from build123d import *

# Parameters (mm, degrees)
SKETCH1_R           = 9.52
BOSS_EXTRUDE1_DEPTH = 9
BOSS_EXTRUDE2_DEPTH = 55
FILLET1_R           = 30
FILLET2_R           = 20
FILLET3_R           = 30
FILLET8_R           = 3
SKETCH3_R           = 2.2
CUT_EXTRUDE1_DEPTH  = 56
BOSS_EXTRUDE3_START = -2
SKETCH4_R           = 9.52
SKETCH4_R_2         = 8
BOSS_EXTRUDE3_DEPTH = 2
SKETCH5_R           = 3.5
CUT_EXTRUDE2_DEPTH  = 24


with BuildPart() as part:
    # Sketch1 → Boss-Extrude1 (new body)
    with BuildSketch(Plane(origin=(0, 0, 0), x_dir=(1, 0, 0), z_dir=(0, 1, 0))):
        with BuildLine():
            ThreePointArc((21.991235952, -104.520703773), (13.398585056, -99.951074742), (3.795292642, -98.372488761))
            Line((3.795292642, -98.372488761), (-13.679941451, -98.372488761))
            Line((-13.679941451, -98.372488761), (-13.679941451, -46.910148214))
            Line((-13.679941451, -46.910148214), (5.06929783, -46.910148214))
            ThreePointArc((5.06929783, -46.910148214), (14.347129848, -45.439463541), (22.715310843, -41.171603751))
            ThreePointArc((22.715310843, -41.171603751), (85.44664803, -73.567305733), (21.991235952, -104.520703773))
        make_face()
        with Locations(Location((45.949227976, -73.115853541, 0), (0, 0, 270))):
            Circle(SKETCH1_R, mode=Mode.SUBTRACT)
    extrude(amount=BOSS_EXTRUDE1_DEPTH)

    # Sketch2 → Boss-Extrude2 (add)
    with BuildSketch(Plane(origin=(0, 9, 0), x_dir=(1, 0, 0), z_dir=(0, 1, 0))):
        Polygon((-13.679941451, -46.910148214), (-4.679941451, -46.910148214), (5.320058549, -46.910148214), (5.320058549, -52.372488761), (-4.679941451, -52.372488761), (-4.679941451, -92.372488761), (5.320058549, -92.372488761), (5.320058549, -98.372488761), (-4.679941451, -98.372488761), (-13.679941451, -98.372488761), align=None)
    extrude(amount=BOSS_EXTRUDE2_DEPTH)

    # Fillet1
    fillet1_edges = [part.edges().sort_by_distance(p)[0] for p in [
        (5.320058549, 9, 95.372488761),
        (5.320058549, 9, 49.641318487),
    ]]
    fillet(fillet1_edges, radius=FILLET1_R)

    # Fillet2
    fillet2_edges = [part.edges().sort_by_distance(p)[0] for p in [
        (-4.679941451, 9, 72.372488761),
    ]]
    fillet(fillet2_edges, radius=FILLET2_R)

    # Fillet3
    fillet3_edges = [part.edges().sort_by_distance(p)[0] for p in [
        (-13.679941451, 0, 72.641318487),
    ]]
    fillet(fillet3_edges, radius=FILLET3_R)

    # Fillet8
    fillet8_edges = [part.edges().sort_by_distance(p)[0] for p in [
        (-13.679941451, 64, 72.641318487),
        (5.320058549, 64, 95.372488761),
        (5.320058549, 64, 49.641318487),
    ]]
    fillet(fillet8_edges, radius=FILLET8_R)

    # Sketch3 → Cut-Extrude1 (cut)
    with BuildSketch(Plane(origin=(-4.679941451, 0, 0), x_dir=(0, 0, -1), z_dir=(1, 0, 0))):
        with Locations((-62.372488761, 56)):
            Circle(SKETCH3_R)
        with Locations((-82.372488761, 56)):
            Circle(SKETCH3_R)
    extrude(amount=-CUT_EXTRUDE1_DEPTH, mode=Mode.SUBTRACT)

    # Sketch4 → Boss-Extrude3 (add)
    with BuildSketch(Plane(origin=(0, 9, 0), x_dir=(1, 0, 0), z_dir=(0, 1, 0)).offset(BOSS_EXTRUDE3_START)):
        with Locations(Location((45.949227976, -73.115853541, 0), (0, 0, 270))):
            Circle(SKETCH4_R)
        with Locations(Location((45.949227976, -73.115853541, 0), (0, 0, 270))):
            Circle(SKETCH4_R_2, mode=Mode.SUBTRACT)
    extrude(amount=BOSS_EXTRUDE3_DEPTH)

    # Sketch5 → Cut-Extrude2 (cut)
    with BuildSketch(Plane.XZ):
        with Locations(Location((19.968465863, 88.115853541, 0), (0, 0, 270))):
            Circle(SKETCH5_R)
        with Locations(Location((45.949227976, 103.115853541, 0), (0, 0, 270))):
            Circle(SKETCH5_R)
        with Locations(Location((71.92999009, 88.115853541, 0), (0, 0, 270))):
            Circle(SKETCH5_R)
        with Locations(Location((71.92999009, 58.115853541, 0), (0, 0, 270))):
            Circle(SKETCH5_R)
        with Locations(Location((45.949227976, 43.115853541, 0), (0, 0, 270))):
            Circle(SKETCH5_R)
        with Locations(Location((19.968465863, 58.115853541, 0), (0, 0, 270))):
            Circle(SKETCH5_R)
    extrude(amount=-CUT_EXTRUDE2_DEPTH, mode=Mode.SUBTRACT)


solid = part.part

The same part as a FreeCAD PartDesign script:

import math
import FreeCAD as App
import Part
import Sketcher
from FreeCAD import Vector
Q = App.Units.Quantity


def edges_at(feature, points):
    """Names of the edges that pass closest to the given points."""
    edges = feature.Shape.Edges
    near = lambda p: min(range(len(edges)), key=lambda i: edges[i].distToShape(Part.Vertex(*p))[0])
    return sorted({f"Edge{near(p) + 1}" for p in points})

doc = App.newDocument("Part")
body = doc.addObject("PartDesign::Body", "Body")

# Sketch on XZ plane
sketch1 = body.newObject("Sketcher::SketchObject", "Sketch")
sketch1.AttachmentSupport = (doc.getObject("XZ_Plane"), [""])
sketch1.MapMode = "FlatFace"
sketch1.addGeometry(Part.ArcOfCircle(Part.Circle(Vector(3.795293, 128.372489, 0), Vector(0, 0, 1), 30), math.radians(-90), math.radians(-52.660876)), False)
sketch1.addGeometry(Part.ArcOfCircle(Part.Circle(Vector(45.949228, 73.115854, 0), Vector(0, 0, 1), 39.5), math.radians(-126.029409), math.radians(127.339124)), False)
sketch1.addGeometry(Part.ArcOfCircle(Part.Circle(Vector(5.069298, 16.910148, 0), Vector(0, 0, 1), 30), math.radians(53.970591), math.radians(90)), False)
sketch1.addGeometry(Part.LineSegment(Vector(5.069298, 46.910148, 0), Vector(-13.679941, 46.910148, 0)), False)
sketch1.addGeometry(Part.LineSegment(Vector(-13.679941, 46.910148, 0), Vector(-13.679941, 98.372489, 0)), False)
sketch1.addGeometry(Part.LineSegment(Vector(-13.679941, 98.372489, 0), Vector(3.795293, 98.372489, 0)), False)
sketch1.addGeometry(Part.Circle(Vector(45.949228, 73.115854, 0), Vector(0, 0, 1), 9.52), False)
sketch1.addConstraint(Sketcher.Constraint("Tangent", 0, 2, 1, 2))
sketch1.addConstraint(Sketcher.Constraint("Tangent", 1, 1, 2, 1))
sketch1.addConstraint(Sketcher.Constraint("Tangent", 2, 2, 3, 1))
sketch1.addConstraint(Sketcher.Constraint("Coincident", 3, 2, 4, 1))
sketch1.addConstraint(Sketcher.Constraint("Coincident", 4, 2, 5, 1))
sketch1.addConstraint(Sketcher.Constraint("Tangent", 5, 2, 0, 1))
sketch1.addConstraint(Sketcher.Constraint("Horizontal", 3))
sketch1.addConstraint(Sketcher.Constraint("Vertical", 4))
sketch1.addConstraint(Sketcher.Constraint("Horizontal", 5))
sketch1.addConstraint(Sketcher.Constraint("Coincident", 6, 3, 1, 3))
sketch1.addConstraint(Sketcher.Constraint("Equal", 0, 2))
sketch1.addConstraint(Sketcher.Constraint("Radius", 0, Q("30 mm")))
sketch1.addConstraint(Sketcher.Constraint("Radius", 1, Q("39.5 mm")))
sketch1.addConstraint(Sketcher.Constraint("Diameter", 6, Q("19.04 mm")))
sketch1.addConstraint(Sketcher.Constraint("DistanceX", 3, 2, 3, 1, Q("18.749239 mm")))
sketch1.addConstraint(Sketcher.Constraint("DistanceY", 4, 1, 4, 2, Q("51.462341 mm")))
sketch1.addConstraint(Sketcher.Constraint("DistanceX", 5, 1, 5, 2, Q("17.475234 mm")))
sketch1.addConstraint(Sketcher.Constraint("DistanceY", -1, 1, 0, 3, Q("128.372489 mm")))
sketch1.addConstraint(Sketcher.Constraint("DistanceX", -1, 1, 1, 1, Q("22.715311 mm")))
pad1 = body.newObject("PartDesign::Pad", "Pad")
pad1.Profile = sketch1
pad1.Length = 9
pad1.Reversed = True

# Sketch on XZ plane
sketch2 = body.newObject("Sketcher::SketchObject", "Sketch001")
sketch2.AttachmentSupport = (doc.getObject("XZ_Plane"), [""])
sketch2.MapMode = "FlatFace"
sketch2.AttachmentOffset = App.Placement(Vector(0, 0, -9), App.Rotation())
sketch2.addGeometry(Part.LineSegment(Vector(5.320059, 46.910148, 0), Vector(-13.679941, 46.910148, 0)), False)
sketch2.addGeometry(Part.LineSegment(Vector(-13.679941, 46.910148, 0), Vector(-13.679941, 98.372489, 0)), False)
sketch2.addGeometry(Part.LineSegment(Vector(-13.679941, 98.372489, 0), Vector(5.320059, 98.372489, 0)), False)
sketch2.addGeometry(Part.LineSegment(Vector(5.320059, 98.372489, 0), Vector(5.320059, 92.372489, 0)), False)
sketch2.addGeometry(Part.LineSegment(Vector(5.320059, 92.372489, 0), Vector(-4.679941, 92.372489, 0)), False)
sketch2.addGeometry(Part.LineSegment(Vector(-4.679941, 92.372489, 0), Vector(-4.679941, 52.372489, 0)), False)
sketch2.addGeometry(Part.LineSegment(Vector(-4.679941, 52.372489, 0), Vector(5.320059, 52.372489, 0)), False)
sketch2.addGeometry(Part.LineSegment(Vector(5.320059, 52.372489, 0), Vector(5.320059, 46.910148, 0)), False)
sketch2.addConstraint(Sketcher.Constraint("Coincident", 0, 2, 1, 1))
sketch2.addConstraint(Sketcher.Constraint("Coincident", 1, 2, 2, 1))
sketch2.addConstraint(Sketcher.Constraint("Coincident", 2, 2, 3, 1))
sketch2.addConstraint(Sketcher.Constraint("Coincident", 3, 2, 4, 1))
sketch2.addConstraint(Sketcher.Constraint("Coincident", 4, 2, 5, 1))
sketch2.addConstraint(Sketcher.Constraint("Coincident", 5, 2, 6, 1))
sketch2.addConstraint(Sketcher.Constraint("Coincident", 6, 2, 7, 1))
sketch2.addConstraint(Sketcher.Constraint("Coincident", 7, 2, 0, 1))
sketch2.addConstraint(Sketcher.Constraint("Horizontal", 0))
sketch2.addConstraint(Sketcher.Constraint("Vertical", 1))
sketch2.addConstraint(Sketcher.Constraint("Horizontal", 2))
sketch2.addConstraint(Sketcher.Constraint("Vertical", 3))
sketch2.addConstraint(Sketcher.Constraint("Horizontal", 4))
sketch2.addConstraint(Sketcher.Constraint("Vertical", 5))
sketch2.addConstraint(Sketcher.Constraint("Horizontal", 6))
sketch2.addConstraint(Sketcher.Constraint("Vertical", 7))
sketch2.addConstraint(Sketcher.Constraint("Vertical", 3, 2, 6, 2))
sketch2.addConstraint(Sketcher.Constraint("DistanceX", 0, 2, 0, 1, Q("19 mm")))
sketch2.addConstraint(Sketcher.Constraint("DistanceX", 4, 2, 4, 1, Q("10 mm")))
sketch2.addConstraint(Sketcher.Constraint("DistanceY", 3, 2, 3, 1, Q("6 mm")))
sketch2.addConstraint(Sketcher.Constraint("DistanceY", 5, 2, 5, 1, Q("40 mm")))
sketch2.addConstraint(Sketcher.Constraint("DistanceY", 1, 1, 1, 2, Q("51.462341 mm")))
sketch2.addConstraint(Sketcher.Constraint("DistanceX", 0, 2, -1, 1, Q("13.679941 mm")))
sketch2.addConstraint(Sketcher.Constraint("DistanceY", -1, 1, 0, 2, Q("46.910148 mm")))
pad2 = body.newObject("PartDesign::Pad", "Pad001")
pad2.Profile = sketch2
pad2.Length = 55
pad2.Reversed = True
doc.recompute()

fillet = body.newObject("PartDesign::Fillet", "Fillet")
fillet.Base = (pad2, edges_at(pad2, [(5.32, 9, 95.372), (5.32, 9, 49.641)]))
fillet.Radius = 30
doc.recompute()

fillet2 = body.newObject("PartDesign::Fillet", "Fillet001")
fillet2.Base = (fillet, edges_at(fillet, [(-4.68, 9, 72.372)]))
fillet2.Radius = 20
doc.recompute()

fillet3 = body.newObject("PartDesign::Fillet", "Fillet002")
fillet3.Base = (fillet2, edges_at(fillet2, [(-13.68, 0, 72.641)]))
fillet3.Radius = 30
doc.recompute()

fillet4 = body.newObject("PartDesign::Fillet", "Fillet003")
fillet4.Base = (fillet3, edges_at(fillet3, [(-13.68, 64, 72.641), (5.32, 64, 95.372), (5.32, 64, 49.641)]))
fillet4.Radius = 3

# Sketch on YZ plane
sketch3 = body.newObject("Sketcher::SketchObject", "Sketch002")
sketch3.AttachmentSupport = (doc.getObject("YZ_Plane"), [""])
sketch3.MapMode = "FlatFace"
sketch3.AttachmentOffset = App.Placement(Vector(0, 0, -4.679941), App.Rotation())
sketch3.addGeometry(Part.Circle(Vector(56, 62.372489, 0), Vector(0, 0, 1), 2.2), False)
sketch3.addGeometry(Part.Circle(Vector(56, 82.372489, 0), Vector(0, 0, 1), 2.2), False)
sketch3.addConstraint(Sketcher.Constraint("Equal", 0, 1))
sketch3.addConstraint(Sketcher.Constraint("Vertical", 0, 3, 1, 3))
sketch3.addConstraint(Sketcher.Constraint("Diameter", 0, Q("4.4 mm")))
sketch3.addConstraint(Sketcher.Constraint("DistanceX", -1, 1, 0, 3, Q("56 mm")))
sketch3.addConstraint(Sketcher.Constraint("DistanceY", 0, 3, 1, 3, Q("20 mm")))
sketch3.addConstraint(Sketcher.Constraint("DistanceY", -1, 1, 0, 3, Q("62.372489 mm")))
pocket1 = body.newObject("PartDesign::Pocket", "Pocket")
pocket1.Profile = sketch3
pocket1.Length = 56

# Sketch on XZ plane
sketch4 = body.newObject("Sketcher::SketchObject", "Sketch003")
sketch4.AttachmentSupport = (doc.getObject("XZ_Plane"), [""])
sketch4.MapMode = "FlatFace"
sketch4.AttachmentOffset = App.Placement(Vector(0, 0, -7), App.Rotation())
sketch4.addGeometry(Part.Circle(Vector(45.949228, 73.115854, 0), Vector(0, 0, 1), 9.52), False)
sketch4.addGeometry(Part.Circle(Vector(45.949228, 73.115854, 0), Vector(0, 0, 1), 8), False)
sketch4.addConstraint(Sketcher.Constraint("Coincident", 1, 3, 0, 3))
sketch4.addConstraint(Sketcher.Constraint("Diameter", 1, Q("16 mm")))
sketch4.addConstraint(Sketcher.Constraint("Diameter", 0, Q("19.04 mm")))
sketch4.addConstraint(Sketcher.Constraint("DistanceX", -1, 1, 0, 3, Q("45.949228 mm")))
sketch4.addConstraint(Sketcher.Constraint("DistanceY", -1, 1, 0, 3, Q("73.115854 mm")))
pad3 = body.newObject("PartDesign::Pad", "Pad002")
pad3.Profile = sketch4
pad3.Length = 2
pad3.Reversed = True

# Sketch on XZ plane
sketch5 = body.newObject("Sketcher::SketchObject", "Sketch004")
sketch5.AttachmentSupport = (doc.getObject("XZ_Plane"), [""])
sketch5.MapMode = "FlatFace"
sketch5.addGeometry(Part.Circle(Vector(19.968466, 88.115854, 0), Vector(0, 0, 1), 3.5), False)
sketch5.addGeometry(Part.Circle(Vector(45.949228, 103.115854, 0), Vector(0, 0, 1), 3.5), False)
sketch5.addGeometry(Part.Circle(Vector(71.92999, 88.115854, 0), Vector(0, 0, 1), 3.5), False)
sketch5.addGeometry(Part.Circle(Vector(71.92999, 58.115854, 0), Vector(0, 0, 1), 3.5), False)
sketch5.addGeometry(Part.Circle(Vector(45.949228, 43.115854, 0), Vector(0, 0, 1), 3.5), False)
sketch5.addGeometry(Part.Circle(Vector(19.968466, 58.115854, 0), Vector(0, 0, 1), 3.5), False)
sketch5.addConstraint(Sketcher.Constraint("Equal", 0, 1))
sketch5.addConstraint(Sketcher.Constraint("Equal", 1, 2))
sketch5.addConstraint(Sketcher.Constraint("Equal", 2, 3))
sketch5.addConstraint(Sketcher.Constraint("Equal", 3, 4))
sketch5.addConstraint(Sketcher.Constraint("Equal", 4, 5))
sketch5.addConstraint(Sketcher.Constraint("Horizontal", 0, 3, 2, 3))
sketch5.addConstraint(Sketcher.Constraint("Horizontal", 3, 3, 5, 3))
sketch5.addConstraint(Sketcher.Constraint("Vertical", 2, 3, 3, 3))
sketch5.addConstraint(Sketcher.Constraint("Vertical", 1, 3, 4, 3))
sketch5.addConstraint(Sketcher.Constraint("Vertical", 0, 3, 5, 3))
sketch5.addConstraint(Sketcher.Constraint("Diameter", 0, Q("7 mm")))
sketch5.addConstraint(Sketcher.Constraint("DistanceY", 0, 3, 1, 3, Q("15 mm")))
sketch5.addConstraint(Sketcher.Constraint("DistanceY", 3, 3, 2, 3, Q("30 mm")))
sketch5.addConstraint(Sketcher.Constraint("DistanceY", 4, 3, 3, 3, Q("15 mm")))
sketch5.addConstraint(Sketcher.Constraint("DistanceX", -1, 1, 2, 3, Q("71.92999 mm")))
sketch5.addConstraint(Sketcher.Constraint("DistanceX", -1, 1, 0, 3, Q("19.968466 mm")))
sketch5.addConstraint(Sketcher.Constraint("DistanceY", -1, 1, 0, 3, Q("88.115854 mm")))
sketch5.addConstraint(Sketcher.Constraint("DistanceX", -1, 1, 1, 3, Q("45.949228 mm")))
pocket2 = body.newObject("PartDesign::Pocket", "Pocket001")
pocket2.Profile = sketch5
pocket2.Length = 24

doc.recompute()
